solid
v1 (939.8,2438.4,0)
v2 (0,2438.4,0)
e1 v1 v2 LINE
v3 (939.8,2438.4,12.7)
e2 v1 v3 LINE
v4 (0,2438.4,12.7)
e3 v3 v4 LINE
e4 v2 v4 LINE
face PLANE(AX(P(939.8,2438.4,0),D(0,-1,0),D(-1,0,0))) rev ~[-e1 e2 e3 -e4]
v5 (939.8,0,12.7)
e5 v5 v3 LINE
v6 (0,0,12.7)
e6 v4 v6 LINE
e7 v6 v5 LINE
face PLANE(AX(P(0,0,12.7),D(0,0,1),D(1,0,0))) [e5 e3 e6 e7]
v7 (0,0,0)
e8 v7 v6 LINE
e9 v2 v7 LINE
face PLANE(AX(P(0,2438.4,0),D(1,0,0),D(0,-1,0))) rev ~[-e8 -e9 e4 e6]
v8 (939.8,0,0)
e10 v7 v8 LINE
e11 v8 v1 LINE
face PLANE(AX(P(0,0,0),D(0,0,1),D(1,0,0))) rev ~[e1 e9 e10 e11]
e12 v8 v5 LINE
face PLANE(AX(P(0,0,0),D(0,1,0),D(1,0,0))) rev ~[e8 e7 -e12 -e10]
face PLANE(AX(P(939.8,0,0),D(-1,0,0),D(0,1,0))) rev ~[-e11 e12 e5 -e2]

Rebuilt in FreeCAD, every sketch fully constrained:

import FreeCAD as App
import Part
import Sketcher
from FreeCAD import Vector
Q = App.Units.Quantity


def add_polygon(sketch, points):
    """Adds a closed chain of lines whose ends are joined by coincident constraints."""
    first, n = sketch.GeometryCount, len(points)
    for a, b in zip(points, points[1:] + points[:1]):
        sketch.addGeometry(Part.LineSegment(App.Vector(*a, 0), App.Vector(*b, 0)), False)
    for i in range(n):
        sketch.addConstraint(Sketcher.Constraint("Coincident", first + i, 2, first + (i + 1) % n, 1))

doc = App.newDocument("Part")
body = doc.addObject("PartDesign::Body", "Body")

# Sketch on XY plane
sketch1 = body.newObject("Sketcher::SketchObject", "Sketch")
sketch1.AttachmentSupport = (doc.getObject("XY_Plane"), [""])
sketch1.MapMode = "FlatFace"
add_polygon(sketch1, [(0, 2438), (0, 0), (940, 0), (940, 2438)])  # lines 0-3
sketch1.addConstraint([
    Sketcher.Constraint("Vertical", 0),
    Sketcher.Constraint("Horizontal", 1),
    Sketcher.Constraint("Vertical", 2),
    Sketcher.Constraint("Horizontal", 3),
    Sketcher.Constraint("Coincident", 0, 2, -1, 1),
    Sketcher.Constraint("DistanceX", 1, 1, 1, 2, Q("37 in")),
    Sketcher.Constraint("DistanceY", 0, 2, 0, 1, Q("96 in")),
])
pad1 = body.newObject("PartDesign::Pad", "Pad")
pad1.Profile = sketch1
pad1.Length = Q("0.5 in")

doc.recompute()
